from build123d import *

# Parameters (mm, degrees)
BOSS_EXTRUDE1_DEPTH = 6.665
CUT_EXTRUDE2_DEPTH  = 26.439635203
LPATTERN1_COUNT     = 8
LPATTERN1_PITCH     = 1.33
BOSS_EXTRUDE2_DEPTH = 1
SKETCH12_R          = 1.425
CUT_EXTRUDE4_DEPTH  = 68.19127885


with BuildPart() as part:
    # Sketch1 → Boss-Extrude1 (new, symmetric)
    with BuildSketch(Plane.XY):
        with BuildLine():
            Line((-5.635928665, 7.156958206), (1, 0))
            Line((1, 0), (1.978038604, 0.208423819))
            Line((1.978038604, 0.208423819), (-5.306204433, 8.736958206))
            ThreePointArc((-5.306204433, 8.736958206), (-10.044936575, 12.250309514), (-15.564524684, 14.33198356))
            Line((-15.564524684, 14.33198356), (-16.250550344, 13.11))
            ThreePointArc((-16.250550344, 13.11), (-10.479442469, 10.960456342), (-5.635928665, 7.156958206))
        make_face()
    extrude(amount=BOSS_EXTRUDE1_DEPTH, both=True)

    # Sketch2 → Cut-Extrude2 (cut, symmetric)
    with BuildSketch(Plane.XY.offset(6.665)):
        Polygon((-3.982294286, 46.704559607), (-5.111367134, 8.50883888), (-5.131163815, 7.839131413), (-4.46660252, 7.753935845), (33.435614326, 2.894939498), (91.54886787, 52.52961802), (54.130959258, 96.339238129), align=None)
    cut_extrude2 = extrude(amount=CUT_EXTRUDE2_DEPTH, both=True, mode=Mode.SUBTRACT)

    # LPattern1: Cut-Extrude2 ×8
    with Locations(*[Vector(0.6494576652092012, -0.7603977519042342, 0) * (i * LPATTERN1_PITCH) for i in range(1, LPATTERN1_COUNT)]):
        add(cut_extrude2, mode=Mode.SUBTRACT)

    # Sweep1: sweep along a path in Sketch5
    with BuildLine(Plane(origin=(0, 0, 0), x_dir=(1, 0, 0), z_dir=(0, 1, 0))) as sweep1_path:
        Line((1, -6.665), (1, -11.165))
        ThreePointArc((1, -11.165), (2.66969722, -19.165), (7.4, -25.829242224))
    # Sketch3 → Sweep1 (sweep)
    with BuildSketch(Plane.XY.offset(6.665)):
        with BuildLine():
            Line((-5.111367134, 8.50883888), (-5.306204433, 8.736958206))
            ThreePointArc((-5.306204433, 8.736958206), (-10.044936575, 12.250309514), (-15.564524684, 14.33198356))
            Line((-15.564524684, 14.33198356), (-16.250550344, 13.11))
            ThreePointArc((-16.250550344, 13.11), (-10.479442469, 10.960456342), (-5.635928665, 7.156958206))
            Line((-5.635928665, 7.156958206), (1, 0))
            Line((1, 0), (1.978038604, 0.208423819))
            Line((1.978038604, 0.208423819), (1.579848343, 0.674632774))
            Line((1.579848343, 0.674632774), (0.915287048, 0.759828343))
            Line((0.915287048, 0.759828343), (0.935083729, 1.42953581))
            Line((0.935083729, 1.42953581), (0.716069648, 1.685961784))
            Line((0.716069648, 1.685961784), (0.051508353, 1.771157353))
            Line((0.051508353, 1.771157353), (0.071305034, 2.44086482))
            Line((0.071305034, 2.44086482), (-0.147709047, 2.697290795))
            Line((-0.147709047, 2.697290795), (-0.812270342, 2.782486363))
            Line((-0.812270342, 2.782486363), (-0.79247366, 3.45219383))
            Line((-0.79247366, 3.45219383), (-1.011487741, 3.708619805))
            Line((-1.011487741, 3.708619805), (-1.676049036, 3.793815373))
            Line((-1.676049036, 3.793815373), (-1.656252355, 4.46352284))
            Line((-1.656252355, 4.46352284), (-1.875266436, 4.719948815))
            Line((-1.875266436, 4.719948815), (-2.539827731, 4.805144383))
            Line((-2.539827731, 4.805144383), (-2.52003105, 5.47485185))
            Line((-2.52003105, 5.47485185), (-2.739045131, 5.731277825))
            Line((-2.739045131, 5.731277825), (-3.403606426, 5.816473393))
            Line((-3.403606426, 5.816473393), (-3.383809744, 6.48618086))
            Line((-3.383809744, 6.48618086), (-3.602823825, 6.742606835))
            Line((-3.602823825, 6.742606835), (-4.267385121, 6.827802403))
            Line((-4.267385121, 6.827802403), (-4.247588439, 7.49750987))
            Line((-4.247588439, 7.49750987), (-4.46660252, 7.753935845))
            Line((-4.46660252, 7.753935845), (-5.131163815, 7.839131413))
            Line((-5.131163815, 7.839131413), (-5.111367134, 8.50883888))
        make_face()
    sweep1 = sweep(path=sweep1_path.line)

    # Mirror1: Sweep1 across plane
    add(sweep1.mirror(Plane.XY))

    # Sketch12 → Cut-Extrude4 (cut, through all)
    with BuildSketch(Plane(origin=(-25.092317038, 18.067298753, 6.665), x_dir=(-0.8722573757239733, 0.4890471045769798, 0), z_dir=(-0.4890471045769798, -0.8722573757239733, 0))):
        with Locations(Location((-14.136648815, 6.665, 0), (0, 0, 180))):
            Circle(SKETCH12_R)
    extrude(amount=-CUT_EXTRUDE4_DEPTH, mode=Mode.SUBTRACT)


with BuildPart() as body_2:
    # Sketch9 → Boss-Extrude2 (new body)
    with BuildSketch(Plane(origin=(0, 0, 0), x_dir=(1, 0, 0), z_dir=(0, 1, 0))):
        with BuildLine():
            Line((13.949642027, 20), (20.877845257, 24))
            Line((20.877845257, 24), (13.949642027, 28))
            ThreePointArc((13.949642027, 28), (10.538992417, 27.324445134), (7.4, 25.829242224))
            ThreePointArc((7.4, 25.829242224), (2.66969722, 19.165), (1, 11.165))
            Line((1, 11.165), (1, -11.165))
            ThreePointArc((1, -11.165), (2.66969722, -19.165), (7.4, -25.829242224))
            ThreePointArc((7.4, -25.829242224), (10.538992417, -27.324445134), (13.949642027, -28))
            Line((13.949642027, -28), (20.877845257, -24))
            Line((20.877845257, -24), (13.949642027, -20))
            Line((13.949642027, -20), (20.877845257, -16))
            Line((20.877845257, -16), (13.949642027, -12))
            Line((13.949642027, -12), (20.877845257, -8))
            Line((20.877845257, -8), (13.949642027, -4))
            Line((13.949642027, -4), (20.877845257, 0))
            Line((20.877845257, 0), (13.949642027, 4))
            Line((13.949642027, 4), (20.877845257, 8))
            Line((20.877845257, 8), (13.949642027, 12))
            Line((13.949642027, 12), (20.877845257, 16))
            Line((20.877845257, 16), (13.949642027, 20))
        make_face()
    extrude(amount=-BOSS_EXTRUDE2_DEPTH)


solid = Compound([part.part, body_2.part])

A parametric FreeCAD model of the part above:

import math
import FreeCAD as App
import Part
import Sketcher
from FreeCAD import Vector
Q = App.Units.Quantity


def add_polygon(sketch, points):
    """Adds a closed chain of lines whose ends are joined by coincident constraints."""
    first, n = sketch.GeometryCount, len(points)
    for a, b in zip(points, points[1:] + points[:1]):
        sketch.addGeometry(Part.LineSegment(App.Vector(*a, 0), App.Vector(*b, 0)), False)
    for i in range(n):
        sketch.addConstraint(Sketcher.Constraint("Coincident", first + i, 2, first + (i + 1) % n, 1))

doc = App.newDocument("Part")
params = doc.addObject("Spreadsheet::Sheet", "Params")
for row, (alias, value) in enumerate([
    ("sketch1_radius", "20 mm"),
    ("sketch1_length", "1 mm"),
    ("sketch1_length2", "9.76 mm"),
    ("pad1_length", "13.33 mm"),
    ("sketch2_length", "0.67 mm"),
    ("pocket1_length", "52.87927 mm"),
    ("linearpattern_pitch", "1.33 mm"),
    ("sketch3_radius", "20 mm"),
    ("sketch3_length", "1 mm"),
    ("sketch3_length2", "0.3 mm"),
    ("sketch3_length3", "9.76 mm"),
    ("sketch3_length4", "0.67 mm"),
    ("sketch4_radius", "20 mm"),
    ("sketch4_height", "4.5 mm"),
    ("sketch5_diameter", "2.85 mm"),
    ("sketch6_radius", "14 mm"),
    ("sketch6_radius2", "20 mm"),
    ("sketch6_length", "8 mm"),
    ("sketch6_height", "22.33 mm"),
    ("pad2_length", "1 mm"),
], start=1):
    params.set(f"A{row}", alias)
    params.set(f"B{row}", "=" + value)
    params.setAlias(f"B{row}", alias)

body = doc.addObject("PartDesign::Body", "Body")

# Sketch on XY plane
sketch1 = doc.addObject("Sketcher::SketchObject", "Sketch")
body.addObject(sketch1)
sketch1.AttachmentSupport = (doc.XY_Plane, [""])
sketch1.MapMode = "FlatFace"
sketch1.addGeometry([
    Part.LineSegment(Vector(-5.635929, 7.156958, 0), Vector(1, 0, 0)),  # 0
    Part.LineSegment(Vector(1, 0, 0), Vector(1.978039, 0.208424, 0)),  # 1
    Part.LineSegment(Vector(1.978039, 0.208424, 0), Vector(-5.306204, 8.736958, 0)),  # 2
    Part.ArcOfCircle(Part.Circle(Vector(-20.262584, -6.483458, 0), Vector(0, 0, 1), 21.339034), math.radians(45.501305), math.radians(77.28141)),  # 3
    Part.LineSegment(Vector(-15.564525, 14.331984, 0), Vector(-16.25055, 13.11, 0)),  # 4
    Part.ArcOfCircle(Part.Circle(Vector(-20.262584, -6.483458, 0), Vector(0, 0, 1), 20), math.radians(43.001758), math.radians(78.427853)),  # 5
], False)
sketch1.addConstraint([
    Sketcher.Constraint("Coincident", 0, 2, 1, 1),
    Sketcher.Constraint("Coincident", 1, 2, 2, 1),
    Sketcher.Constraint("Coincident", 2, 2, 3, 1),
    Sketcher.Constraint("Coincident", 3, 2, 4, 1),
    Sketcher.Constraint("Coincident", 4, 2, 5, 2),
    Sketcher.Constraint("Coincident", 5, 1, 0, 1),
    Sketcher.Constraint("Coincident", 5, 3, 3, 3),
    Sketcher.Constraint("PointOnObject", 0, 2, -1),
    Sketcher.Constraint("Radius", 5, Q("20 mm")),
    Sketcher.Constraint("Distance", 1, Q("1 mm")),
    Sketcher.Constraint("DistanceX", -1, 1, 0, 2, Q("1 mm")),
    Sketcher.Constraint("Angle", 1, Q("12.03 deg")),
    Sketcher.Constraint("Angle", 4, Q("-119.31 deg")),
    Sketcher.Constraint("Distance", 0, Q("9.76 mm")),
    Sketcher.Constraint("DistanceY", -1, 1, 4, 2, Q("13.11 mm")),
    Sketcher.Constraint("DistanceY", 5, 1, 2, 2, Q("1.58 mm")),
    Sketcher.Constraint("Radius", 3, Q("21.339034 mm")),
    Sketcher.Constraint("DistanceY", -1, 1, 2, 2, Q("8.736958 mm")),
    Sketcher.Constraint("DistanceX", 4, 2, -1, 1, Q("16.25055 mm")),
])
sketch1.setExpression("Constraints[8]", "Params.sketch1_radius")
sketch1.setExpression("Constraints[9]", "Params.sketch1_length")
sketch1.setExpression("Constraints[13]", "Params.sketch1_length2")
pad1 = doc.addObject("PartDesign::Pad", "Pad")
body.addObject(pad1)
pad1.Profile = sketch1
pad1.setExpression("Length", "Params.pad1_length")
pad1.Midplane = True

# Sketch on XY plane
sketch2 = doc.addObject("Sketcher::SketchObject", "Sketch001")
body.addObject(sketch2)
sketch2.AttachmentSupport = (doc.XY_Plane, [""])
sketch2.MapMode = "FlatFace"
sketch2.AttachmentOffset = App.Placement(Vector(0, 0, 6.665), App.Rotation())
add_polygon(sketch2, [(-3.982294, 46.70456), (-5.111367, 8.508839), (-5.131164, 7.839131), (-4.466603, 7.753936), (33.435614, 2.894939), (91.548868, 52.529618), (54.130959, 96.339238)])  # lines 0-6
sketch2.addConstraint([
    Sketcher.Constraint("Parallel", 0, 1),
    Sketcher.Constraint("Parallel", 2, 3),
    Sketcher.Constraint("Perpendicular", 4, 5),
    Sketcher.Constraint("Perpendicular", 5, 6),
    Sketcher.Constraint("Equal", 1, 2),
    Sketcher.Constraint("Equal", 0, 3),
    Sketcher.Constraint("Equal", 4, 6),
    Sketcher.Constraint("Distance", 1, Q("0.67 mm")),
    Sketcher.Constraint("DistanceY", 3, 2, 0, 2, Q("5.613899 mm")),
    Sketcher.Constraint("DistanceY", 3, 2, 5, 2, Q("93.444299 mm")),
    Sketcher.Constraint("Distance", 4, Q("76.42481 mm")),
    Sketcher.Constraint("DistanceY", -1, 1, 0, 2, Q("8.508839 mm")),
    Sketcher.Constraint("DistanceY", -1, 1, 4, 2, Q("52.529618 mm")),
    Sketcher.Constraint("DistanceX", -1, 1, 5, 2, Q("54.130959 mm")),
])
sketch2.setExpression("Constraints[14]", "Params.sketch2_length")
pocket1 = doc.addObject("PartDesign::Pocket", "Pocket")
body.addObject(pocket1)
pocket1.Profile = sketch2
pocket1.setExpression("Length", "Params.pocket1_length")
pocket1.Midplane = True
doc.recompute()

datumline = doc.addObject("PartDesign::Line", "DatumLine")
body.addObject(datumline)
datumline.Placement = App.Placement(Vector(0, 0, 0), App.Rotation(Vector(0, 0, 1), Vector(0.649457665, -0.760397752, 0)))
linearpattern = doc.addObject("PartDesign::LinearPattern", "LinearPattern")
body.addObject(linearpattern)
linearpattern.Originals = [pocket1]
linearpattern.Direction = (datumline, [""])
linearpattern.Mode = "offset"
linearpattern.setExpression("Offset", "Params.linearpattern_pitch")
linearpattern.Occurrences = 8
body.Tip = linearpattern

# Sketch on XY plane
sketch3 = doc.addObject("Sketcher::SketchObject", "Sketch002")
body.addObject(sketch3)
sketch3.AttachmentSupport = (doc.XY_Plane, [""])
sketch3.MapMode = "FlatFace"
sketch3.AttachmentOffset = App.Placement(Vector(0, 0, 6.665), App.Rotation())
sketch3.addGeometry([
    Part.LineSegment(Vector(-5.111367, 8.508839, 0), Vector(-5.306204, 8.736958, 0)),  # 0
    Part.ArcOfCircle(Part.Circle(Vector(-20.262584, -6.483458, 0), Vector(0, 0, 1), 21.339034), math.radians(45.501305), math.radians(77.28141)),  # 1
    Part.LineSegment(Vector(-15.564525, 14.331984, 0), Vector(-16.25055, 13.11, 0)),  # 2
    Part.ArcOfCircle(Part.Circle(Vector(-20.262584, -6.483458, 0), Vector(0, 0, 1), 20), math.radians(43.001758), math.radians(78.427853)),  # 3
    Part.LineSegment(Vector(-5.635929, 7.156958, 0), Vector(1, 0, 0)),  # 4
    Part.LineSegment(Vector(1, 0, 0), Vector(1.978039, 0.208424, 0)),  # 5
    Part.LineSegment(Vector(1.978039, 0.208424, 0), Vector(1.579848, 0.674633, 0)),  # 6
    Part.LineSegment(Vector(1.579848, 0.674633, 0), Vector(0.915287, 0.759828, 0)),  # 7
    Part.LineSegment(Vector(0.915287, 0.759828, 0), Vector(0.935084, 1.429536, 0)),  # 8
    Part.LineSegment(Vector(0.935084, 1.429536, 0), Vector(0.71607, 1.685962, 0)),  # 9
    Part.LineSegment(Vector(0.71607, 1.685962, 0), Vector(0.051508, 1.771157, 0)),  # 10
    Part.LineSegment(Vector(0.051508, 1.771157, 0), Vector(0.071305, 2.440865, 0)),  # 11
    Part.LineSegment(Vector(0.071305, 2.440865, 0), Vector(-0.147709, 2.697291, 0)),  # 12
    Part.LineSegment(Vector(-0.147709, 2.697291, 0), Vector(-0.81227, 2.782486, 0)),  # 13
    Part.LineSegment(Vector(-0.81227, 2.782486, 0), Vector(-0.792474, 3.452194, 0)),  # 14
    Part.LineSegment(Vector(-0.792474, 3.452194, 0), Vector(-1.011488, 3.70862, 0)),  # 15
    Part.LineSegment(Vector(-1.011488, 3.70862, 0), Vector(-1.676049, 3.793815, 0)),  # 16
    Part.LineSegment(Vector(-1.676049, 3.793815, 0), Vector(-1.656252, 4.463523, 0)),  # 17
    Part.LineSegment(Vector(-1.656252, 4.463523, 0), Vector(-1.875266, 4.719949, 0)),  # 18
    Part.LineSegment(Vector(-1.875266, 4.719949, 0), Vector(-2.539828, 4.805144, 0)),  # 19
    Part.LineSegment(Vector(-2.539828, 4.805144, 0), Vector(-2.520031, 5.474852, 0)),  # 20
    Part.LineSegment(Vector(-2.520031, 5.474852, 0), Vector(-2.739045, 5.731278, 0)),  # 21
    Part.LineSegment(Vector(-2.739045, 5.731278, 0), Vector(-3.403606, 5.816473, 0)),  # 22
    Part.LineSegment(Vector(-3.403606, 5.816473, 0), Vector(-3.38381, 6.486181, 0)),  # 23
    Part.LineSegment(Vector(-3.38381, 6.486181, 0), Vector(-3.602824, 6.742607, 0)),  # 24
    Part.LineSegment(Vector(-3.602824, 6.742607, 0), Vector(-4.267385, 6.827802, 0)),  # 25
    Part.LineSegment(Vector(-4.267385, 6.827802, 0), Vector(-4.247588, 7.49751, 0)),  # 26
    Part.LineSegment(Vector(-4.247588, 7.49751, 0), Vector(-4.466603, 7.753936, 0)),  # 27
    Part.LineSegment(Vector(-4.466603, 7.753936, 0), Vector(-5.131164, 7.839131, 0)),  # 28
    Part.LineSegment(Vector(-5.131164, 7.839131, 0), Vector(-5.111367, 8.508839, 0)),  # 29
], False)
sketch3.addConstraint([
    Sketcher.Constraint("Coincident", 0, 2, 1, 1),
    Sketcher.Constraint("Coincident", 1, 2, 2, 1),
    Sketcher.Constraint("Coincident", 2, 2, 3, 2),
    Sketcher.Constraint("Coincident", 3, 1, 4, 1),
    Sketcher.Constraint("Coincident", 4, 2, 5, 1),
    Sketcher.Constraint("Coincident", 5, 2, 6, 1),
    Sketcher.Constraint("Coincident", 6, 2, 7, 1),
    Sketcher.Constraint("Coincident", 7, 2, 8, 1),
    Sketcher.Constraint("Coincident", 8, 2, 9, 1),
    Sketcher.Constraint("Coincident", 9, 2, 10, 1),
    Sketcher.Constraint("Coincident", 10, 2, 11, 1),
    Sketcher.Constraint("Coincident", 11, 2, 12, 1),
    Sketcher.Constraint("Coincident", 12, 2, 13, 1),
    Sketcher.Constraint("Coincident", 13, 2, 14, 1),
    Sketcher.Constraint("Coincident", 14, 2, 15, 1),
    Sketcher.Constraint("Coincident", 15, 2, 16, 1),
    Sketcher.Constraint("Coincident", 16, 2, 17, 1),
    Sketcher.Constraint("Coincident", 17, 2, 18, 1),
    Sketcher.Constraint("Coincident", 18, 2, 19, 1),
    Sketcher.Constraint("Coincident", 19, 2, 20, 1),
    Sketcher.Constraint("Coincident", 20, 2, 21, 1),
    Sketcher.Constraint("Coincident", 21, 2, 22, 1),
    Sketcher.Constraint("Coincident", 22, 2, 23, 1),
    Sketcher.Constraint("Coincident", 23, 2, 24, 1),
    Sketcher.Constraint("Coincident", 24, 2, 25, 1),
    Sketcher.Constraint("Coincident", 25, 2, 26, 1),
    Sketcher.Constraint("Coincident", 26, 2, 27, 1),
    Sketcher.Constraint("Coincident", 27, 2, 28, 1),
    Sketcher.Constraint("Coincident", 28, 2, 29, 1),
    Sketcher.Constraint("Coincident", 29, 2, 0, 1),
    Sketcher.Constraint("Coincident", 3, 3, 1, 3),
    Sketcher.Constraint("PointOnObject", 4, 2, -1),
    Sketcher.Constraint("Parallel", 0, 6),
    Sketcher.Constraint("Parallel", 6, 9),
    Sketcher.Constraint("Parallel", 7, 10),
    Sketcher.Constraint("Parallel", 8, 11),
    Sketcher.Constraint("Parallel", 9, 12),
    Sketcher.Constraint("Parallel", 10, 13),
    Sketcher.Constraint("Parallel", 11, 14),
    Sketcher.Constraint("Parallel", 12, 15),
    Sketcher.Constraint("Parallel", 13, 16),
    Sketcher.Constraint("Parallel", 14, 17),
    Sketcher.Constraint("Parallel", 15, 18),
    Sketcher.Constraint("Parallel", 16, 19),
    Sketcher.Constraint("Parallel", 17, 20),
    Sketcher.Constraint("Parallel", 18, 21),
    Sketcher.Constraint("Parallel", 19, 22),
    Sketcher.Constraint("Parallel", 20, 23),
    Sketcher.Constraint("Parallel", 21, 24),
    Sketcher.Constraint("Parallel", 22, 25),
    Sketcher.Constraint("Parallel", 23, 26),
    Sketcher.Constraint("Parallel", 24, 27),
    Sketcher.Constraint("Parallel", 25, 28),
    Sketcher.Constraint("Parallel", 26, 29),
    Sketcher.Constraint("Equal", 7, 8),
    Sketcher.Constraint("Equal", 8, 10),
    Sketcher.Constraint("Equal", 10, 11),
    Sketcher.Constraint("Equal", 9, 12),
    Sketcher.Constraint("Equal", 11, 13),
    Sketcher.Constraint("Equal", 13, 14),
    Sketcher.Constraint("Equal", 12, 15),
    Sketcher.Constraint("Equal", 14, 16),
    Sketcher.Constraint("Equal", 16, 17),
    Sketcher.Constraint("Equal", 15, 18),
    Sketcher.Constraint("Equal", 17, 19),
    Sketcher.Constraint("Equal", 19, 20),
    Sketcher.Constraint("Equal", 18, 21),
    Sketcher.Constraint("Equal", 20, 22),
    Sketcher.Constraint("Equal", 22, 23),
    Sketcher.Constraint("Equal", 21, 24),
    Sketcher.Constraint("Equal", 23, 25),
    Sketcher.Constraint("Equal", 25, 26),
    Sketcher.Constraint("Equal", 24, 27),
    Sketcher.Constraint("Equal", 26, 28),
    Sketcher.Constraint("Equal", 28, 29),
    Sketcher.Constraint("Radius", 3, Q("20 mm")),
    Sketcher.Constraint("Distance", 5, Q("1 mm")),
    Sketcher.Constraint("DistanceX", -1, 1, 4, 2, Q("1 mm")),
    Sketcher.Constraint("Distance", 0, Q("0.3 mm")),
    Sketcher.Constraint("Angle", 2, Q("-119.31 deg")),
    Sketcher.Constraint("Angle", 5, Q("12.03 deg")),
    Sketcher.Constraint("Distance", 4, Q("9.76 mm")),
    Sketcher.Constraint("Distance", 7, Q("0.67 mm")),
    Sketcher.Constraint("DistanceY", -1, 1, 2, 2, Q("13.11 mm")),
    Sketcher.Constraint("DistanceY", 3, 1, 0, 2, Q("1.58 mm")),
    Sketcher.Constraint("Radius", 1, Q("21.339034 mm")),
    Sketcher.Constraint("DistanceX", 2, 2, 6, 2, Q("17.830399 mm")),
    Sketcher.Constraint("DistanceX", 0, 2, 27, 2, Q("0.839602 mm")),
    Sketcher.Constraint("Distance", 6, Q("0.613112 mm")),
    Sketcher.Constraint("DistanceY", -1, 1, 0, 2, Q("8.736958 mm")),
    Sketcher.Constraint("DistanceX", 2, 2, -1, 1, Q("16.25055 mm")),
])
sketch3.setExpression("Constraints[75]", "Params.sketch3_radius")
sketch3.setExpression("Constraints[76]", "Params.sketch3_length")
sketch3.setExpression("Constraints[78]", "Params.sketch3_length2")
sketch3.setExpression("Constraints[81]", "Params.sketch3_length3")
sketch3.setExpression("Constraints[82]", "Params.sketch3_length4")

# Sketch on XZ plane
sketch4 = doc.addObject("Sketcher::SketchObject", "Sketch003")
body.addObject(sketch4)
sketch4.AttachmentSupport = (doc.XZ_Plane, [""])
sketch4.MapMode = "FlatFace"
sketch4.addGeometry([
    Part.LineSegment(Vector(1, 6.665, 0), Vector(1, 11.165, 0)),
    Part.ArcOfCircle(Part.Circle(Vector(21, 11.165, 0), Vector(0, 0, 1), 20), math.radians(132.843643), math.radians(180)),
], False)
sketch4.addConstraint([
    Sketcher.Constraint("Tangent", 0, 2, 1, 2),
    Sketcher.Constraint("Vertical", 0),
    Sketcher.Constraint("Radius", 1, Q("20 mm")),
    Sketcher.Constraint("DistanceY", 0, 1, 0, 2, Q("4.5 mm")),
    Sketcher.Constraint("DistanceX", -1, 1, 1, 3, Q("21 mm")),
    Sketcher.Constraint("DistanceX", -1, 1, 1, 1, Q("7.4 mm")),
    Sketcher.Constraint("DistanceY", -1, 1, 1, 3, Q("11.165 mm")),
])
sketch4.setExpression("Constraints[2]", "Params.sketch4_radius")
sketch4.setExpression("Constraints[3]", "Params.sketch4_height")
doc.recompute()

additivepipe = doc.addObject("PartDesign::AdditivePipe", "AdditivePipe")
body.addObject(additivepipe)
additivepipe.Profile = sketch3
additivepipe.Spine = (sketch4, ["Edge1", "Edge2"])
doc.recompute()

mirrored = doc.addObject("PartDesign::Mirrored", "Mirrored")
body.addObject(mirrored)
mirrored.Originals = [additivepipe]
mirrored.MirrorPlane = (doc.XY_Plane, [""])
body.Tip = mirrored

# Sketch on an angled plane
sketch5 = doc.addObject("Sketcher::SketchObject", "Sketch004")
body.addObject(sketch5)
sketch5.Placement = App.Placement(Vector(-25.092317, 18.067299, 6.665), App.Rotation(Vector(-0.872257376, 0.489047105, 0), Vector(0, 0, -1.000000001), Vector(-0.489047105, -0.872257376, 0), "ZXY"))
sketch5.addGeometry(Part.Circle(Vector(-14.136649, 6.665, 0), Vector(0, 0, 1), 1.425), False)
sketch5.addConstraint([
    Sketcher.Constraint("Diameter", 0, Q("2.85 mm")),
    Sketcher.Constraint("DistanceY", -1, 1, 0, 3, Q("6.665 mm")),
    Sketcher.Constraint("DistanceX", 0, 3, -1, 1, Q("14.136649 mm")),
])
sketch5.setExpression("Constraints[0]", "Params.sketch5_diameter")
pocket2 = doc.addObject("PartDesign::Pocket", "Pocket001")
body.addObject(pocket2)
pocket2.Profile = sketch5
pocket2.Type = "ThroughAll"
body2 = doc.addObject("PartDesign::Body", "Body001")

# Sketch on XZ plane
sketch6 = doc.addObject("Sketcher::SketchObject", "Sketch005")
body2.addObject(sketch6)
sketch6.AttachmentSupport = (doc.getObject("XZ_Plane001"), [""])
sketch6.MapMode = "FlatFace"
sketch6.addGeometry([
    Part.LineSegment(Vector(13.949642, -20, 0), Vector(20.877845, -24, 0)),  # 0
    Part.LineSegment(Vector(20.877845, -24, 0), Vector(13.949642, -28, 0)),  # 1
    Part.ArcOfCircle(Part.Circle(Vector(14.943428, -14.035316, 0), Vector(0, 0, 1), 14), math.radians(-122.603097), math.radians(-94.07055)),  # 2
    Part.ArcOfCircle(Part.Circle(Vector(21, -11.165, 0), Vector(0, 0, 1), 20), math.radians(180), math.radians(227.156357)),  # 3
    Part.LineSegment(Vector(1, -11.165, 0), Vector(1, 11.165, 0)),  # 4
    Part.ArcOfCircle(Part.Circle(Vector(21, 11.165, 0), Vector(0, 0, 1), 20), math.radians(132.843643), math.radians(180)),  # 5
    Part.ArcOfCircle(Part.Circle(Vector(14.943428, 14.035316, 0), Vector(0, 0, 1), 14), math.radians(94.07055), math.radians(122.603097)),  # 6
    Part.LineSegment(Vector(13.949642, 28, 0), Vector(20.877845, 24, 0)),  # 7
    Part.LineSegment(Vector(20.877845, 24, 0), Vector(13.949642, 20, 0)),  # 8
    Part.LineSegment(Vector(13.949642, 20, 0), Vector(20.877845, 16, 0)),  # 9
    Part.LineSegment(Vector(20.877845, 16, 0), Vector(13.949642, 12, 0)),  # 10
    Part.LineSegment(Vector(13.949642, 12, 0), Vector(20.877845, 8, 0)),  # 11
    Part.LineSegment(Vector(20.877845, 8, 0), Vector(13.949642, 4, 0)),  # 12
    Part.LineSegment(Vector(13.949642, 4, 0), Vector(20.877845, 0, 0)),  # 13
    Part.LineSegment(Vector(20.877845, 0, 0), Vector(13.949642, -4, 0)),  # 14
    Part.LineSegment(Vector(13.949642, -4, 0), Vector(20.877845, -8, 0)),  # 15
    Part.LineSegment(Vector(20.877845, -8, 0), Vector(13.949642, -12, 0)),  # 16
    Part.LineSegment(Vector(13.949642, -12, 0), Vector(20.877845, -16, 0)),  # 17
    Part.LineSegment(Vector(20.877845, -16, 0), Vector(13.949642, -20, 0)),  # 18
], False)
sketch6.addConstraint([
    Sketcher.Constraint("Coincident", 0, 2, 1, 1),
    Sketcher.Constraint("Coincident", 1, 2, 2, 2),
    Sketcher.Constraint("Coincident", 2, 1, 3, 2),
    Sketcher.Constraint("Tangent", 3, 1, 4, 1),
    Sketcher.Constraint("Tangent", 4, 2, 5, 2),
    Sketcher.Constraint("Coincident", 5, 1, 6, 2),
    Sketcher.Constraint("Coincident", 6, 1, 7, 1),
    Sketcher.Constraint("Coincident", 7, 2, 8, 1),
    Sketcher.Constraint("Coincident", 8, 2, 9, 1),
    Sketcher.Constraint("Coincident", 9, 2, 10, 1),
    Sketcher.Constraint("Coincident", 10, 2, 11, 1),
    Sketcher.Constraint("Coincident", 11, 2, 12, 1),
    Sketcher.Constraint("Coincident", 12, 2, 13, 1),
    Sketcher.Constraint("Coincident", 13, 2, 14, 1),
    Sketcher.Constraint("Coincident", 14, 2, 15, 1),
    Sketcher.Constraint("Coincident", 15, 2, 16, 1),
    Sketcher.Constraint("Coincident", 16, 2, 17, 1),
    Sketcher.Constraint("Coincident", 17, 2, 18, 1),
    Sketcher.Constraint("Coincident", 18, 2, 0, 1),
    Sketcher.Constraint("Vertical", 4),
    Sketcher.Constraint("Equal", 3, 5),
    Sketcher.Constraint("Equal", 2, 6),
    Sketcher.Constraint("Symmetric", 2, 3, 6, 3, -1),
    Sketcher.Constraint("Symmetric", 0, 2, 7, 2, -1),
    Sketcher.Constraint("Symmetric", 12, 2, 14, 2, -1),
    Sketcher.Constraint("Symmetric", 11, 2, 15, 2, -1),
    Sketcher.Constraint("Symmetric", 10, 2, 16, 2, -1),
    Sketcher.Constraint("Symmetric", 9, 2, 17, 2, -1),
    Sketcher.Constraint("Symmetric", 8, 2, 18, 2, -1),
    Sketcher.Constraint("PointOnObject", 13, 2, -1),
    Sketcher.Constraint("Parallel", 0, 7),
    Sketcher.Constraint("Parallel", 1, 8),
    Sketcher.Constraint("Parallel", 7, 9),
    Sketcher.Constraint("Parallel", 8, 10),
    Sketcher.Constraint("Parallel", 9, 11),
    Sketcher.Constraint("Parallel", 10, 12),
    Sketcher.Constraint("Parallel", 11, 13),
    Sketcher.Constraint("Vertical", 2, 1, 5, 1),
    Sketcher.Constraint("Vertical", 6, 1, 8, 2),
    Sketcher.Constraint("Vertical", 7, 2, 9, 2),
    Sketcher.Constraint("Vertical", 8, 2, 10, 2),
    Sketcher.Constraint("Vertical", 9, 2, 11, 2),
    Sketcher.Constraint("Vertical", 10, 2, 12, 2),
    Sketcher.Constraint("Vertical", 11, 2, 13, 2),
    Sketcher.Constraint("Radius", 2, Q("14 mm")),
    Sketcher.Constraint("Radius", 3, Q("20 mm")),
    Sketcher.Constraint("Angle", 0, Q("-30 deg")),
    Sketcher.Constraint("Distance", 0, Q("8 mm")),
    Sketcher.Constraint("DistanceX", -1, 1, 3, 3, Q("21 mm")),
    Sketcher.Constraint("DistanceY", 4, 1, 4, 2, Q("22.33 mm")),
    Sketcher.Constraint("DistanceX", -1, 1, 2, 1, Q("7.4 mm")),
    Sketcher.Constraint("DistanceX", -1, 1, 2, 3, Q("14.943428 mm")),
])
sketch6.setExpression("Constraints[44]", "Params.sketch6_radius")
sketch6.setExpression("Constraints[45]", "Params.sketch6_radius2")
sketch6.setExpression("Constraints[47]", "Params.sketch6_length")
sketch6.setExpression("Constraints[49]", "Params.sketch6_height")
pad2 = doc.addObject("PartDesign::Pad", "Pad001")
body2.addObject(pad2)
pad2.Profile = sketch6
pad2.setExpression("Length", "Params.pad2_length")

doc.recompute()
